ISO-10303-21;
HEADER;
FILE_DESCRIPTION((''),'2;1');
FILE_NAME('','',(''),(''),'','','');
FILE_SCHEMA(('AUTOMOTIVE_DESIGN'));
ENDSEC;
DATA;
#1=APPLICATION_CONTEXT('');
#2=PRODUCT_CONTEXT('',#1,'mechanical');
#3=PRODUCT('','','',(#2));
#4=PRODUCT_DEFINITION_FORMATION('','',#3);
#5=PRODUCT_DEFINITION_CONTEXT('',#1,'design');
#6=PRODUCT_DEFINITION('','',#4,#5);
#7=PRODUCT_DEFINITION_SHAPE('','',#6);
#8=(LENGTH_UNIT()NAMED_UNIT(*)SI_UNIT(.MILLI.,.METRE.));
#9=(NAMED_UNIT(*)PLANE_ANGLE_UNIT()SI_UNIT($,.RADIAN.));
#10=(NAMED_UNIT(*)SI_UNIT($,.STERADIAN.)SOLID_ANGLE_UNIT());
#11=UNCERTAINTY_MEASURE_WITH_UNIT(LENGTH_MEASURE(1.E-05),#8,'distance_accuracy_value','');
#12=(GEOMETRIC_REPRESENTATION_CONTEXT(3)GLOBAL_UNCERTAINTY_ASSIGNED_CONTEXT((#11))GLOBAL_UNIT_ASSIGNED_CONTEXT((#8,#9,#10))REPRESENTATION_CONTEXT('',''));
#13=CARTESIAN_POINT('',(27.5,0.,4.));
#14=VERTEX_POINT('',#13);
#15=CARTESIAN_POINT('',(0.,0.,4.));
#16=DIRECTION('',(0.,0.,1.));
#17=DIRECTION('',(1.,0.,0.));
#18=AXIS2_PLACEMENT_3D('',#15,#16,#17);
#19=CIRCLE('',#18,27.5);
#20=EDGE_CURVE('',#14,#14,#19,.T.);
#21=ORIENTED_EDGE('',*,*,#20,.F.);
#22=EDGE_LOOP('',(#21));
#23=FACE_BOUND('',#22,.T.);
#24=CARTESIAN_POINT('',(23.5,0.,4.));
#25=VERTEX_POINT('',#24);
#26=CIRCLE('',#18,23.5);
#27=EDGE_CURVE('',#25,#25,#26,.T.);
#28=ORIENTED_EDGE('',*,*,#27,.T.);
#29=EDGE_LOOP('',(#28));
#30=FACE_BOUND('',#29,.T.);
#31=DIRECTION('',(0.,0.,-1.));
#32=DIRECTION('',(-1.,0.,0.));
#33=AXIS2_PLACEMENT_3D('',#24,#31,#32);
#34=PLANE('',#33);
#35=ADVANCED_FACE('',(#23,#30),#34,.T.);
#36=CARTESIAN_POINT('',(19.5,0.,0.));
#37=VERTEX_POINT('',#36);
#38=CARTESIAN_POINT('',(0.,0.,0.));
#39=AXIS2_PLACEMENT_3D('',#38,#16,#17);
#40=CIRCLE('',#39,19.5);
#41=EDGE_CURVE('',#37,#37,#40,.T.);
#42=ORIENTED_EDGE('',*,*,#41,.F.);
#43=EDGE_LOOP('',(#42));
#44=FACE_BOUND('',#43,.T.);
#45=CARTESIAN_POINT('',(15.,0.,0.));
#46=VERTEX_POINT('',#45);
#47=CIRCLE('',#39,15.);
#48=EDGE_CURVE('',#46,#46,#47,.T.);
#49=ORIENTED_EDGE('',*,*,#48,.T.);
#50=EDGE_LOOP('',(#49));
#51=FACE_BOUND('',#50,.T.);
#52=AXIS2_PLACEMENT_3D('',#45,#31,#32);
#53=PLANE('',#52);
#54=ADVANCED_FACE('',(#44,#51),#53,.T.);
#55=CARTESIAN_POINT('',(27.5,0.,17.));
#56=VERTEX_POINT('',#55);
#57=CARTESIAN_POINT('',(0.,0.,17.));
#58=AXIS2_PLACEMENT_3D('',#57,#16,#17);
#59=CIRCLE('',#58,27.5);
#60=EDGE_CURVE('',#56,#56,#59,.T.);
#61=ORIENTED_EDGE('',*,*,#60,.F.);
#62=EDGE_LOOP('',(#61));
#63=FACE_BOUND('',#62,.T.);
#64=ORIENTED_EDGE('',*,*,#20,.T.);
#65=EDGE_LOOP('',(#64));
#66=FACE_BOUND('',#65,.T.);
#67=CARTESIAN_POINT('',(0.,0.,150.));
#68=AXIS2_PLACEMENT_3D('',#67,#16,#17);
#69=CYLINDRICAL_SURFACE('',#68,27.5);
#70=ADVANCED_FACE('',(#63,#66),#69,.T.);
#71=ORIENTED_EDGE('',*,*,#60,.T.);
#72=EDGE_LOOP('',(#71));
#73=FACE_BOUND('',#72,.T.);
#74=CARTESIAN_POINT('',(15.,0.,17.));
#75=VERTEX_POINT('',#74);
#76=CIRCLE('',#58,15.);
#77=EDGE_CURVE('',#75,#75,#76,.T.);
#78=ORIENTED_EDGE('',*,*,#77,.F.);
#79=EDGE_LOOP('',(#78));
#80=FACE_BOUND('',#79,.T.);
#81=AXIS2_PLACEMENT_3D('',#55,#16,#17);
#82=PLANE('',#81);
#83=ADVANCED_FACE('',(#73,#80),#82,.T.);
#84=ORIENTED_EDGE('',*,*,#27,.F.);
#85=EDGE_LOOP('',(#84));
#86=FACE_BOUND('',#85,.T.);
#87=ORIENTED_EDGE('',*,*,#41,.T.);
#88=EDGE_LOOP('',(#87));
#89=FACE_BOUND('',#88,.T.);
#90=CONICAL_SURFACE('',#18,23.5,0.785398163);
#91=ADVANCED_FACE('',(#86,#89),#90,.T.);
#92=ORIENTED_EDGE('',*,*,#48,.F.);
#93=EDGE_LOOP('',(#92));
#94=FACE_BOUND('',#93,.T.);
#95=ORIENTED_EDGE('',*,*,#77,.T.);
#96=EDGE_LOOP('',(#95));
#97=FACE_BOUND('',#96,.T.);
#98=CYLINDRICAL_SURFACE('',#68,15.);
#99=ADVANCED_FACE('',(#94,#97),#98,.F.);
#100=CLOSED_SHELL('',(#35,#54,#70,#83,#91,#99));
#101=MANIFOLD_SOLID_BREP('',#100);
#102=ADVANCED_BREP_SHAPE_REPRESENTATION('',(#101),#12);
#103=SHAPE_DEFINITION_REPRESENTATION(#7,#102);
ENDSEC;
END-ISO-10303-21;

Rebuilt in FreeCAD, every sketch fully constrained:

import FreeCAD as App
import Part
import Sketcher
Q = App.Units.Quantity


def add_polygon(sketch, points):
    """Adds a closed chain of lines whose ends are joined by coincident constraints."""
    first, n = sketch.GeometryCount, len(points)
    for a, b in zip(points, points[1:] + points[:1]):
        sketch.addGeometry(Part.LineSegment(App.Vector(*a, 0), App.Vector(*b, 0)), False)
    for i in range(n):
        sketch.addConstraint(Sketcher.Constraint("Coincident", first + i, 2, first + (i + 1) % n, 1))

doc = App.newDocument("Part")
params = doc.addObject("Spreadsheet::Sheet", "Params")
for row, (alias, value) in enumerate([
    ("sketch1_width", "4 mm"),
    ("sketch1_height", "17 mm"),
    ("sketch1_height2", "13 mm"),
    ("sketch1_width2", "4.5 mm"),
    ("revolution_angle", "360 deg"),
], start=1):
    params.set(f"A{row}", alias)
    params.set(f"B{row}", "=" + value)
    params.setAlias(f"B{row}", alias)

body = doc.addObject("PartDesign::Body", "Body")

# Sketch on XZ plane
sketch1 = body.newObject("Sketcher::SketchObject", "Sketch")
sketch1.AttachmentSupport = (doc.getObject("XZ_Plane"), [""])
sketch1.MapMode = "FlatFace"
add_polygon(sketch1, [(19.5, 0), (15, 0), (15, 17), (27.5, 17), (27.5, 4), (23.5, 4)])  # lines 0-5
sketch1.addConstraint(Sketcher.Constraint("Horizontal", 0))
sketch1.addConstraint(Sketcher.Constraint("Vertical", 1))
sketch1.addConstraint(Sketcher.Constraint("Horizontal", 2))
sketch1.addConstraint(Sketcher.Constraint("Vertical", 3))
sketch1.addConstraint(Sketcher.Constraint("Horizontal", 4))
sketch1.addConstraint(Sketcher.Constraint("PointOnObject", 0, 2, -1))
sketch1.addConstraint(Sketcher.Constraint("DistanceX", 4, 2, 4, 1, Q("4 mm")))
sketch1.addConstraint(Sketcher.Constraint("DistanceY", 1, 1, 1, 2, Q("17 mm")))
sketch1.addConstraint(Sketcher.Constraint("DistanceY", 3, 2, 3, 1, Q("13 mm")))
sketch1.addConstraint(Sketcher.Constraint("Angle", 5, Q("-135 deg")))
sketch1.addConstraint(Sketcher.Constraint("DistanceX", 0, 2, 0, 1, Q("4.5 mm")))
sketch1.addConstraint(Sketcher.Constraint("DistanceX", -1, 1, 0, 2, Q("15 mm")))
sketch1.setExpression("Constraints[12]", "Params.sketch1_width")
sketch1.setExpression("Constraints[13]", "Params.sketch1_height")
sketch1.setExpression("Constraints[14]", "Params.sketch1_height2")
sketch1.setExpression("Constraints[16]", "Params.sketch1_width2")
revolution = body.newObject("PartDesign::Revolution", "Revolution")
revolution.Profile = sketch1
revolution.ReferenceAxis = (sketch1, ["V_Axis"])
revolution.setExpression("Angle", "Params.revolution_angle")

doc.recompute()
